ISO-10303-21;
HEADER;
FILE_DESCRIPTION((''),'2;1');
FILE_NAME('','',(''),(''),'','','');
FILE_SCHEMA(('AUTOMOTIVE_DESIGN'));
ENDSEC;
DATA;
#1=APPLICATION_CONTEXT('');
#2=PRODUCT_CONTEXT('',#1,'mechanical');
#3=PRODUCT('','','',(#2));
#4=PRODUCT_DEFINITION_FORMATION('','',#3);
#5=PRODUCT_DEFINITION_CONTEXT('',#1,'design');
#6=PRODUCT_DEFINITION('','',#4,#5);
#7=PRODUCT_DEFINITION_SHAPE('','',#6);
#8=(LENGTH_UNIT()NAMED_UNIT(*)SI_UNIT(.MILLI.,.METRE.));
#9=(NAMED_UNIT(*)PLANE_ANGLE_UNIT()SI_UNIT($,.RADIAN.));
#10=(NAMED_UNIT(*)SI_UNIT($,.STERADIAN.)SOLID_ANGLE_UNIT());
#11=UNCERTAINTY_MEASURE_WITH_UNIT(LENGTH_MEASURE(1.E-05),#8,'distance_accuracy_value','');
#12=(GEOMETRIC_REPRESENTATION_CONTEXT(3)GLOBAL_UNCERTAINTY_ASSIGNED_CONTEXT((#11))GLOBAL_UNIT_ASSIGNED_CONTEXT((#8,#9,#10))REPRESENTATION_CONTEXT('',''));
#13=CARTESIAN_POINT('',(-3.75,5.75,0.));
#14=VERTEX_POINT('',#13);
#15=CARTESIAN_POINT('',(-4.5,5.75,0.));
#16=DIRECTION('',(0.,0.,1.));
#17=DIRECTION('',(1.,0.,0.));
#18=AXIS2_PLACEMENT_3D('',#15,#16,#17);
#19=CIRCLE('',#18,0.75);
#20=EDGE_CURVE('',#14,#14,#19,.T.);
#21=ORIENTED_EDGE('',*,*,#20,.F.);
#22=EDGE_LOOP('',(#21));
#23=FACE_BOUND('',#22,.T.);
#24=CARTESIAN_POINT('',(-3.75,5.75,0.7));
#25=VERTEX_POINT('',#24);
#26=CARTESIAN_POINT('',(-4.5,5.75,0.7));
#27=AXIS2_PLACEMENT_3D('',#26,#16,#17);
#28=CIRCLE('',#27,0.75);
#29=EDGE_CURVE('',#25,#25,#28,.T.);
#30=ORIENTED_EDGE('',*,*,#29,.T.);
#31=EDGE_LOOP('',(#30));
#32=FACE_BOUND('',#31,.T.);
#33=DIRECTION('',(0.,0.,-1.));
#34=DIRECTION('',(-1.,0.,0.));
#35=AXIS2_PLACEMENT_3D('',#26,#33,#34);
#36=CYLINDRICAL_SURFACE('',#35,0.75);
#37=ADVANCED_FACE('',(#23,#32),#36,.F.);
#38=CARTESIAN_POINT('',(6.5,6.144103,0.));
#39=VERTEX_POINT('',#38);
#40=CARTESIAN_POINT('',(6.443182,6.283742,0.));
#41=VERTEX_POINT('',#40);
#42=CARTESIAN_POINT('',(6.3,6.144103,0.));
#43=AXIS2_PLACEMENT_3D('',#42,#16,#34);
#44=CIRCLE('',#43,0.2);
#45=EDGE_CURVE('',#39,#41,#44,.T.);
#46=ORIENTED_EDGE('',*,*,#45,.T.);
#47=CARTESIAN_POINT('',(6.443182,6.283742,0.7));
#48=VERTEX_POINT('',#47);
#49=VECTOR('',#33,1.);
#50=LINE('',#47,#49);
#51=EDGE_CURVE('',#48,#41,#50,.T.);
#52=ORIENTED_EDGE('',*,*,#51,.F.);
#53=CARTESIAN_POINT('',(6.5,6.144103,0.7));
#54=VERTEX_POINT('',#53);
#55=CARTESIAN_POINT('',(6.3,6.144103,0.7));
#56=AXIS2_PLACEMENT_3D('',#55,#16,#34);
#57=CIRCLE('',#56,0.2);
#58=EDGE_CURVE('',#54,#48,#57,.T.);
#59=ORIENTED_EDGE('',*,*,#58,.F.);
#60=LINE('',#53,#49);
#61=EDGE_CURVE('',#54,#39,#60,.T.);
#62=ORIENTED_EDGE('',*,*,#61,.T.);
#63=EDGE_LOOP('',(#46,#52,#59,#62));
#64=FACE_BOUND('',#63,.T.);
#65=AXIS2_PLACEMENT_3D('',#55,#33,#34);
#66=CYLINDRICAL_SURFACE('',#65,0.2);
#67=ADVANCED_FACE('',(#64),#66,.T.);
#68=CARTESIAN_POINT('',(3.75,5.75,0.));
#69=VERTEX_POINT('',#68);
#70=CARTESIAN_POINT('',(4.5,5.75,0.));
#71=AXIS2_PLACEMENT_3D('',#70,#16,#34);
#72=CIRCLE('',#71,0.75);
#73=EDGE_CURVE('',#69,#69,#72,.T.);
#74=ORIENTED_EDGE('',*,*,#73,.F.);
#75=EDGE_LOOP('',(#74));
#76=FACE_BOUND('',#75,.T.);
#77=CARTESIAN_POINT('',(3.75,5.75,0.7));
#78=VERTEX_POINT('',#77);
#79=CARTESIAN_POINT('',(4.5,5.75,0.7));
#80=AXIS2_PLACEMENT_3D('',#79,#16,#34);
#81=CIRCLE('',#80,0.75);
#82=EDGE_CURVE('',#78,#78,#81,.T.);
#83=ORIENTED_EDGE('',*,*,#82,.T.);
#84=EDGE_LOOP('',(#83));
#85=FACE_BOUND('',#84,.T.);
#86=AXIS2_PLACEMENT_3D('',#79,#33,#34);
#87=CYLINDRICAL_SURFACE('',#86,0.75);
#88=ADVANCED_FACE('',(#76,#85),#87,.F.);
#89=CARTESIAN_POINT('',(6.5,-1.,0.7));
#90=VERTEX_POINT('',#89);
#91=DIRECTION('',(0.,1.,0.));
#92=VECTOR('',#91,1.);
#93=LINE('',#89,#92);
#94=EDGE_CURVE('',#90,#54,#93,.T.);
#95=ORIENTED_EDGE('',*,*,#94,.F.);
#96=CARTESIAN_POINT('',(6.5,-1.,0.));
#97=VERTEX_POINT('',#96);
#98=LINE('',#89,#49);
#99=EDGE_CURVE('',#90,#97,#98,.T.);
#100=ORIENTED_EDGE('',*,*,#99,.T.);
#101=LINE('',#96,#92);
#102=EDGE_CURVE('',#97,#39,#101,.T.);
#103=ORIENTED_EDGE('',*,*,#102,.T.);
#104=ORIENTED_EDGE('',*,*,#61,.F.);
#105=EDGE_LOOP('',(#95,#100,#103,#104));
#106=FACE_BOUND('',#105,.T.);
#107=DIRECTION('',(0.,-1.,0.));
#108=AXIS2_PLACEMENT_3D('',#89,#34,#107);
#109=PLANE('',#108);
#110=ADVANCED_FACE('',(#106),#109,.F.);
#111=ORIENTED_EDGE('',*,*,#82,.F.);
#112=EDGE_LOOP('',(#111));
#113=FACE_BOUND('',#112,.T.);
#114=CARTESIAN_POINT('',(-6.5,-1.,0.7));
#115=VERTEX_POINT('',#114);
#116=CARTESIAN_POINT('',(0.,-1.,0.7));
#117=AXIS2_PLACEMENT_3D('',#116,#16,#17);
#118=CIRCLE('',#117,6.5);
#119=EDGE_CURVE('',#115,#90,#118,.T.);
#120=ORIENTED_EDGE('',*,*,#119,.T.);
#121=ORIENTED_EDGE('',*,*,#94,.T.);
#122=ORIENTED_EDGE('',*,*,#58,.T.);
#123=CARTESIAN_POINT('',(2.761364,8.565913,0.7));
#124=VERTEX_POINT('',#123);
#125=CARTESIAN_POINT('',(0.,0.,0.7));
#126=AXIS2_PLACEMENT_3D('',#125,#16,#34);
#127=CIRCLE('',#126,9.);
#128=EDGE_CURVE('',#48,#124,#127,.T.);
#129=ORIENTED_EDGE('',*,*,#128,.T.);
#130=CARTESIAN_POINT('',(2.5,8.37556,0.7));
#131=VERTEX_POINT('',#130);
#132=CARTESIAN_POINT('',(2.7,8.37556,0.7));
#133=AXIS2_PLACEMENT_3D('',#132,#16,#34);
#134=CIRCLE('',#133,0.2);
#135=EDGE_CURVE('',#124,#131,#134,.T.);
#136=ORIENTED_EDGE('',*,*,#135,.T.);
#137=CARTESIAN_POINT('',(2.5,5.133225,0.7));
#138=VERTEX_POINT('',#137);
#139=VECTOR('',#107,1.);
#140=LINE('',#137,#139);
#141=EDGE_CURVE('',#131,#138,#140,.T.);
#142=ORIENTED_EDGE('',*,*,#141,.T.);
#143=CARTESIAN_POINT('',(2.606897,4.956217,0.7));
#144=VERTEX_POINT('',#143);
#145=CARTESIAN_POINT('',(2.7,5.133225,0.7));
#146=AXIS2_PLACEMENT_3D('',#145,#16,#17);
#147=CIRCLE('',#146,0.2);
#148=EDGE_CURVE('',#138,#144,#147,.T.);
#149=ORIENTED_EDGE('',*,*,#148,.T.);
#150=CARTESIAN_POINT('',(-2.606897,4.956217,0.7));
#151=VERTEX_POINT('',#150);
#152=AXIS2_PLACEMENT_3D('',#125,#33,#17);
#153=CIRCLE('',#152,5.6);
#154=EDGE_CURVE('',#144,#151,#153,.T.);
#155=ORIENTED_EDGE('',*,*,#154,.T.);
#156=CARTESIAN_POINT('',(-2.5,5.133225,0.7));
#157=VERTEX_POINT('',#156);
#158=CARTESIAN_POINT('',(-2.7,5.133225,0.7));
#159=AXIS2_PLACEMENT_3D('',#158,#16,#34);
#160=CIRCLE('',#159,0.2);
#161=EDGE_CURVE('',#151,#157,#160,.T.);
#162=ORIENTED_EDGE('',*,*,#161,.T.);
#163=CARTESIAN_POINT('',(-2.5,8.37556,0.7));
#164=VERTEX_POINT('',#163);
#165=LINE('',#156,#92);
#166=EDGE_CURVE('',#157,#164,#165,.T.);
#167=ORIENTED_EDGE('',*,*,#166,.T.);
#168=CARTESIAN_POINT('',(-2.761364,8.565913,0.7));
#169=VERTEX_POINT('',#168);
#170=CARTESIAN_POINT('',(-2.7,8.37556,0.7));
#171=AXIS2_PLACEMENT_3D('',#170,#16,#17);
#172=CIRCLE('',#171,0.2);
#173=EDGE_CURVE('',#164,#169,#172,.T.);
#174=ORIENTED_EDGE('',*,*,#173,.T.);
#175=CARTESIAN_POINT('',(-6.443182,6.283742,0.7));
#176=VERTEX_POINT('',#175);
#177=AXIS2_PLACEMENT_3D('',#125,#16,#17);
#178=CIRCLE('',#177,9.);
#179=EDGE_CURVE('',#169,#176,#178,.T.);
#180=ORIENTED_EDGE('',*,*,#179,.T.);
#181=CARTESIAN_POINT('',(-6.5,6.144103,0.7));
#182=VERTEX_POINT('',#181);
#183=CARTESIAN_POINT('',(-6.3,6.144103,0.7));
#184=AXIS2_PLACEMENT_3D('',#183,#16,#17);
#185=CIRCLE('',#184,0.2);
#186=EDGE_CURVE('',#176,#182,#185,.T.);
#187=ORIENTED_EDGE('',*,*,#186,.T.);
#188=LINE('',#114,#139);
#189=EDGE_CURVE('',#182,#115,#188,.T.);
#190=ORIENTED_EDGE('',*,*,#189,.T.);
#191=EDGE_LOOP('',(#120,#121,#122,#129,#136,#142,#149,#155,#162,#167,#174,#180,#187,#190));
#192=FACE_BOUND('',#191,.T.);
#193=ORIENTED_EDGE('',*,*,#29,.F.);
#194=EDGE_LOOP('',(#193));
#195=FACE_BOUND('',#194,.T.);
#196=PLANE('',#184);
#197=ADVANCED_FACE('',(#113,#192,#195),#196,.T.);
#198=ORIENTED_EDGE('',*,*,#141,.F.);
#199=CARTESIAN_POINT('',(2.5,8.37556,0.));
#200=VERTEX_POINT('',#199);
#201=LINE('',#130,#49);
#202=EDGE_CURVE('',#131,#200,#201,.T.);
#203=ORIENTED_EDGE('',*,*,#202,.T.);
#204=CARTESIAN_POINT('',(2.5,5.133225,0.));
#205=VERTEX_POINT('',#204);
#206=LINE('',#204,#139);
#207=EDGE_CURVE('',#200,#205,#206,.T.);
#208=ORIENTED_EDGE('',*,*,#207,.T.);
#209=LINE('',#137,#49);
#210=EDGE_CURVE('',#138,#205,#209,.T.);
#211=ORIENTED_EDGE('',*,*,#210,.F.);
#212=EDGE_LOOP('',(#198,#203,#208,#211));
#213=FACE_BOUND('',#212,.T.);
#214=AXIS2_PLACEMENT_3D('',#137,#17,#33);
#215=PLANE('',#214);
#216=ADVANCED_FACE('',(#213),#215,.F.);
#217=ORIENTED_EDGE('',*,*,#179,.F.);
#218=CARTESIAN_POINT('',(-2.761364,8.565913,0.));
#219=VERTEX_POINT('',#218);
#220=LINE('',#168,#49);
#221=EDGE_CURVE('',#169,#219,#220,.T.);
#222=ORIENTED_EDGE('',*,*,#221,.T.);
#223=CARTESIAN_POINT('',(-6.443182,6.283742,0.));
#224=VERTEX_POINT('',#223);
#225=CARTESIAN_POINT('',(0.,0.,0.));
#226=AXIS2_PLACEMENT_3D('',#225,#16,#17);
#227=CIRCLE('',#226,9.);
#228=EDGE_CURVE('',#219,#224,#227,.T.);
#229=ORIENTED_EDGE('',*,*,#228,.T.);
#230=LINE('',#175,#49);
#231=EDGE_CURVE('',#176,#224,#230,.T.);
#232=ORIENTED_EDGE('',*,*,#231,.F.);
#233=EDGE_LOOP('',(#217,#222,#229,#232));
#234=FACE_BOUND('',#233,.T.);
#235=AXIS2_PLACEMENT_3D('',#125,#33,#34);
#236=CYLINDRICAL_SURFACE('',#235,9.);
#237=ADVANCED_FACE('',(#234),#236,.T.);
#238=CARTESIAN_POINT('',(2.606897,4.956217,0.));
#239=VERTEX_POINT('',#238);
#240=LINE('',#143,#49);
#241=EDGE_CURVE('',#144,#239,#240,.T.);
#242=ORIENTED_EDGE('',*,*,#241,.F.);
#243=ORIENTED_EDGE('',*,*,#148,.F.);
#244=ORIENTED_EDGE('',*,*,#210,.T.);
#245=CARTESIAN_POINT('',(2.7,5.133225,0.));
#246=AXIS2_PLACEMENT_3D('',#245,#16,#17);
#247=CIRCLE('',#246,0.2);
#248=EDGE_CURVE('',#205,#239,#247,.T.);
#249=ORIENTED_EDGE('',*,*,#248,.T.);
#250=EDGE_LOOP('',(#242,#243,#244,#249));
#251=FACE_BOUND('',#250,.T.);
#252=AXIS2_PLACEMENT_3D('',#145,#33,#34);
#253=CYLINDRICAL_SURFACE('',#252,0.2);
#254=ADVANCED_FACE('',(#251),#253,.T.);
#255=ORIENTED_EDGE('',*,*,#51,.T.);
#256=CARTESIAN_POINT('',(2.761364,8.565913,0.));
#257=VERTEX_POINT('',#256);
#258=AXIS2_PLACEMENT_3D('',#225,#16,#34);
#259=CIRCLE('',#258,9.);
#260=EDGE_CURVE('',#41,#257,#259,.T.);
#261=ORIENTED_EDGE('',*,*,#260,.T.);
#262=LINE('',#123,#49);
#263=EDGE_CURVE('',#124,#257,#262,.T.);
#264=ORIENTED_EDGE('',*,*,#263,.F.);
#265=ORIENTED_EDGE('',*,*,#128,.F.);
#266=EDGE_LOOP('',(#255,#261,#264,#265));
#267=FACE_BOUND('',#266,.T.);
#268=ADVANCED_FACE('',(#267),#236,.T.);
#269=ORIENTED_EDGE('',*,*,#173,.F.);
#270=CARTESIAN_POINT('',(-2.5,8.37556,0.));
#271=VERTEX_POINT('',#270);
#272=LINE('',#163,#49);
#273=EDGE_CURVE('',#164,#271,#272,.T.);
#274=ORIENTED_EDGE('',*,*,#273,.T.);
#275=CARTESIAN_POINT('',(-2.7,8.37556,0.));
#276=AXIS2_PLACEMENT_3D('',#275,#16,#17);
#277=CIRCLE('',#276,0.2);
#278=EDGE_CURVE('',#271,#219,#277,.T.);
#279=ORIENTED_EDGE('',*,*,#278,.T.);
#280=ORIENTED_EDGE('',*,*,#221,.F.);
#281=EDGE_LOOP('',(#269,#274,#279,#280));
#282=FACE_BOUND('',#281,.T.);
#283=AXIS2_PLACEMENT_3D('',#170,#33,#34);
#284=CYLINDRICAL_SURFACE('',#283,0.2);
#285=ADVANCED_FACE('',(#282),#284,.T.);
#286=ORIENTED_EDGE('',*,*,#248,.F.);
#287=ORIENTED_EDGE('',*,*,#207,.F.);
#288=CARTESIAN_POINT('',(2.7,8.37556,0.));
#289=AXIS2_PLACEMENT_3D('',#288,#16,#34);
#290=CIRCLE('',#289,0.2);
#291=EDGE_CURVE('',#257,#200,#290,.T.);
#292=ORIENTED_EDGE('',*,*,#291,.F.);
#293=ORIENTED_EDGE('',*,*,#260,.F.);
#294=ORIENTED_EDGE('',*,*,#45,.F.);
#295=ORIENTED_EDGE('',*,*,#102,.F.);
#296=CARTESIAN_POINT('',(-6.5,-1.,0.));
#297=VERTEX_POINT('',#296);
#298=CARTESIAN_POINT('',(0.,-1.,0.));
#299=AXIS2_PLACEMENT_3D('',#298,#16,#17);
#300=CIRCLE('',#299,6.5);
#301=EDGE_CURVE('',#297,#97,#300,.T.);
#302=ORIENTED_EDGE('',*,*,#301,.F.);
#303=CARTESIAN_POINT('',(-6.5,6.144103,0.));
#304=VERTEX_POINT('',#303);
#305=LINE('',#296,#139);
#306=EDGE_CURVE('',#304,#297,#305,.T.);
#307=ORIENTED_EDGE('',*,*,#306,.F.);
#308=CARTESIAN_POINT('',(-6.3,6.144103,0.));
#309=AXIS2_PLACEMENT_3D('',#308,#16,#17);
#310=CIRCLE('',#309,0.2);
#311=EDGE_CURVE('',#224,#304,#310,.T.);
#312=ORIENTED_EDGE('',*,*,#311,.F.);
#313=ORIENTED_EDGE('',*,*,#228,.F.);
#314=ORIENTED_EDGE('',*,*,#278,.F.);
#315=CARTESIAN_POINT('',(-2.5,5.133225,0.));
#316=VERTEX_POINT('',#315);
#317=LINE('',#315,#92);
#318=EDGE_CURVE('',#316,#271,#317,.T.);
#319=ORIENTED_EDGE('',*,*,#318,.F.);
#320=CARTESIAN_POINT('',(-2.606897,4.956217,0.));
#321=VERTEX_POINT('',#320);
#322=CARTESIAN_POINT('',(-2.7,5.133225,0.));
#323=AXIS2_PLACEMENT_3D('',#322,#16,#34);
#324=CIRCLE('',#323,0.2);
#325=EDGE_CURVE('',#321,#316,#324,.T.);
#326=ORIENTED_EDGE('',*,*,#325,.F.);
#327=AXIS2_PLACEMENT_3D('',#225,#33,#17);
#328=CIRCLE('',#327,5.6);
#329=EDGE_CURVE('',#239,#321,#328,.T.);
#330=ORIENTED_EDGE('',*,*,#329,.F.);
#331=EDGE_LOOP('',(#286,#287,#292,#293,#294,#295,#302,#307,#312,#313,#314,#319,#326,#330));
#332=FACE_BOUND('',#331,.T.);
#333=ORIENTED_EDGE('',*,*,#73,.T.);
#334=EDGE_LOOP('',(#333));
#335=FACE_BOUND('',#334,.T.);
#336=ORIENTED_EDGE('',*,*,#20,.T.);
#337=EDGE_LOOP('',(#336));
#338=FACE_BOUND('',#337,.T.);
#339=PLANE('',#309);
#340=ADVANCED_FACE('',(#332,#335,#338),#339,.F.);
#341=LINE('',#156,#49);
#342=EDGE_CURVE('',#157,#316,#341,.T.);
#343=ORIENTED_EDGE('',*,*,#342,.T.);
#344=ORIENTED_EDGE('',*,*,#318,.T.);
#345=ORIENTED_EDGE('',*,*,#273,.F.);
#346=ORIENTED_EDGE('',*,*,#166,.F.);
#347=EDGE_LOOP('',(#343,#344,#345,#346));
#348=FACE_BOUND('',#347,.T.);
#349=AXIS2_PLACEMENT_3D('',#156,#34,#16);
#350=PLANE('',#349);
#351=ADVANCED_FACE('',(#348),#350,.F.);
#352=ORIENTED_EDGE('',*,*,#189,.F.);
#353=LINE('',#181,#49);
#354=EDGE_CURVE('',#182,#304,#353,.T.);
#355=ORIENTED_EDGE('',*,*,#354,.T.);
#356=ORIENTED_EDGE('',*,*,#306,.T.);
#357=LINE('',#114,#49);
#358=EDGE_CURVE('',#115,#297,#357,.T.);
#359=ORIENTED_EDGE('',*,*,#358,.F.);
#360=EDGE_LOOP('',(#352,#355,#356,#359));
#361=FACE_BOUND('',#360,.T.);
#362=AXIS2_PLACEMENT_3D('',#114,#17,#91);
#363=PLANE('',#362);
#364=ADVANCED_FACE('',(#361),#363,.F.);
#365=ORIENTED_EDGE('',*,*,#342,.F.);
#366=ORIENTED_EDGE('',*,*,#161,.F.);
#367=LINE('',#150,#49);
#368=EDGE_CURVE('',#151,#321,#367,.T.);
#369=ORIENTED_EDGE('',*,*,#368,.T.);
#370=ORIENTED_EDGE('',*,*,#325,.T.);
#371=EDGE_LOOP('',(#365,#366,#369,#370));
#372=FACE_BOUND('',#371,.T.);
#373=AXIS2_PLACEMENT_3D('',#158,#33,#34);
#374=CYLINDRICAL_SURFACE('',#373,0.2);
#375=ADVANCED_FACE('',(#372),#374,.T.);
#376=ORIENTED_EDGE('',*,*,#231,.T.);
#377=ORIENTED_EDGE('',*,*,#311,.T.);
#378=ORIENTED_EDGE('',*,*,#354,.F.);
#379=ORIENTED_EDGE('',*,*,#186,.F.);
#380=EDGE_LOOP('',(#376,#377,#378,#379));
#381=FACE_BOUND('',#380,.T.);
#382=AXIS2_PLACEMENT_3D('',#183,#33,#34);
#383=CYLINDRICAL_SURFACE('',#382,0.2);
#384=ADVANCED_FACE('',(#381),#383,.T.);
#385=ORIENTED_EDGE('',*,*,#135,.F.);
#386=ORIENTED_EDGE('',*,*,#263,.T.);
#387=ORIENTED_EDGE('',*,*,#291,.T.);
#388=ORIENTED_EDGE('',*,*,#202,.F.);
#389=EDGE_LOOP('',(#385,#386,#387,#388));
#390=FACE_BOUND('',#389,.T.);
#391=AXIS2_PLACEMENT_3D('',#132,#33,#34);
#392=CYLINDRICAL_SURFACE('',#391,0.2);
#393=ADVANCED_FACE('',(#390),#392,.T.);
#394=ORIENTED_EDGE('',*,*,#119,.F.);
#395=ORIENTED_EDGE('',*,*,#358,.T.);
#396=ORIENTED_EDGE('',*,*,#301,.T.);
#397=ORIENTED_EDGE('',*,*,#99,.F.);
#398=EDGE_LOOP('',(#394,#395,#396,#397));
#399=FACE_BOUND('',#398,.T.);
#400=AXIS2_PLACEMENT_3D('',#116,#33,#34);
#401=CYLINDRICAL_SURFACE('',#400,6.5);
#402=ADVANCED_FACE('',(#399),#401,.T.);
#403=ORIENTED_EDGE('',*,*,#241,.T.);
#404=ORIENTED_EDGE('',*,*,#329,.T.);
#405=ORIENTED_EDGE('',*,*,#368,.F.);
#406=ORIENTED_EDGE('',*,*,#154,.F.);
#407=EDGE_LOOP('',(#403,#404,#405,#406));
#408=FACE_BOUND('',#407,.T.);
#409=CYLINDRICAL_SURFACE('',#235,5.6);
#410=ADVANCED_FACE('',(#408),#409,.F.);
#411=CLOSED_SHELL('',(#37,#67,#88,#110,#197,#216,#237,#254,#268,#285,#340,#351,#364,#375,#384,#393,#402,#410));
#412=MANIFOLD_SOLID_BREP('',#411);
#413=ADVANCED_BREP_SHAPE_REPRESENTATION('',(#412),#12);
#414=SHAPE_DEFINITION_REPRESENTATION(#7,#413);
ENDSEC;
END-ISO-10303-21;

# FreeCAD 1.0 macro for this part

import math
import FreeCAD as App
import Part
import Sketcher

V = App.Vector

doc = App.newDocument("Part")
body = doc.addObject("PartDesign::Body", "Body")

sketch1 = body.newObject("Sketcher::SketchObject", "Sketch")
sketch1.AttachmentSupport = (doc.getObject("XY_Plane"), [""])
sketch1.MapMode = "FlatFace"
sketch1.addGeometry([
    Part.LineSegment(V(-6.5, 6.14, 0), V(-6.5, -1, 0)),
    Part.ArcOfCircle(Part.Circle(V(0, -1, 0), V(0, 0, 1), 6.5), math.radians(180), math.radians(360)),
    Part.LineSegment(V(6.5, -1, 0), V(6.5, 6.14, 0)),
    Part.ArcOfCircle(Part.Circle(V(6.3, 6.14, 0), V(0, 0, 1), 0.2), math.radians(0), math.radians(44)),
    Part.ArcOfCircle(Part.Circle(V(0, 0, 0), V(0, 0, 1), 9), math.radians(44), math.radians(72)),
    Part.ArcOfCircle(Part.Circle(V(2.7, 8.38, 0), V(0, 0, 1), 0.2), math.radians(72), math.radians(180)),
    Part.LineSegment(V(2.5, 8.38, 0), V(2.5, 5.13, 0)),
    Part.ArcOfCircle(Part.Circle(V(2.7, 5.13, 0), V(0, 0, 1), 0.2), math.radians(180), math.radians(242)),
    Part.ArcOfCircle(Part.Circle(V(0, 0, 0), V(0, 0, 1), 5.6), math.radians(118), math.radians(422)),
    Part.ArcOfCircle(Part.Circle(V(-2.7, 5.13, 0), V(0, 0, 1), 0.2), math.radians(-62), math.radians(0)),
    Part.LineSegment(V(-2.5, 5.13, 0), V(-2.5, 8.38, 0)),
    Part.ArcOfCircle(Part.Circle(V(-2.7, 8.38, 0), V(0, 0, 1), 0.2), math.radians(0), math.radians(108)),
    Part.ArcOfCircle(Part.Circle(V(0, 0, 0), V(0, 0, 1), 9), math.radians(108), math.radians(136)),
    Part.ArcOfCircle(Part.Circle(V(-6.3, 6.14, 0), V(0, 0, 1), 0.2), math.radians(136), math.radians(180)),
    Part.Circle(V(4.5, 5.75, 0), V(0, 0, 1), 0.75),
    Part.Circle(V(-4.5, 5.75, 0), V(0, 0, 1), 0.75),
], False)
sketch1.addConstraint([
    Sketcher.Constraint("Tangent", 0, 2, 1, 1),
    Sketcher.Constraint("Tangent", 1, 2, 2, 1),
    Sketcher.Constraint("Tangent", 2, 2, 3, 1),
    Sketcher.Constraint("Tangent", 3, 2, 4, 1),
    Sketcher.Constraint("Tangent", 4, 2, 5, 1),
    Sketcher.Constraint("Tangent", 5, 2, 6, 1),
    Sketcher.Constraint("Tangent", 6, 2, 7, 1),
    Sketcher.Constraint("Tangent", 7, 2, 8, 2),
    Sketcher.Constraint("Tangent", 8, 1, 9, 1),
    Sketcher.Constraint("Tangent", 9, 2, 10, 1),
    Sketcher.Constraint("Tangent", 10, 2, 11, 1),
    Sketcher.Constraint("Tangent", 11, 2, 12, 1),
    Sketcher.Constraint("Tangent", 12, 2, 13, 1),
    Sketcher.Constraint("Tangent", 13, 2, 0, 1),
    Sketcher.Constraint("Vertical", 0),
    Sketcher.Constraint("Vertical", 2),
    Sketcher.Constraint("Vertical", 6),
    Sketcher.Constraint("Vertical", 10),
    Sketcher.Constraint("Coincident", 4, 3, -1, 1),
    Sketcher.Constraint("Coincident", 8, 3, -1, 1),
    Sketcher.Constraint("Coincident", 12, 3, -1, 1),
    Sketcher.Constraint("Equal", 3, 5),
    Sketcher.Constraint("Equal", 5, 7),
    Sketcher.Constraint("Equal", 7, 9),
    Sketcher.Constraint("Equal", 9, 11),
    Sketcher.Constraint("Equal", 4, 12),
    Sketcher.Constraint("Equal", 11, 13),
    Sketcher.Constraint("Equal", 14, 15),
    Sketcher.Constraint("Symmetric", 14, 3, 15, 3, -2),
    Sketcher.Constraint("PointOnObject", 1, 3, -2),
    Sketcher.Constraint("Horizontal", 7, 3, 9, 3),
    Sketcher.Constraint("Radius", 4, 9.0),
    Sketcher.Constraint("Diameter", 14, 1.5),
    Sketcher.Constraint("Radius", 1, 6.5),
    Sketcher.Constraint("Radius", 3, 0.2),
    Sketcher.Constraint("Radius", 8, 5.6),
    Sketcher.Constraint("DistanceY", 1, 3, -1, 1, 1.0),
    Sketcher.Constraint("DistanceX", 0, 2, 15, 3, 2.0),
    Sketcher.Constraint("DistanceX", 5, 2, 14, 3, 2.0),
    Sketcher.Constraint("DistanceY", -1, 1, 14, 3, 5.75),
])
pad1 = body.newObject("PartDesign::Pad", "Pad")
pad1.Profile = sketch1
pad1.Length = 0.7

doc.recompute()
